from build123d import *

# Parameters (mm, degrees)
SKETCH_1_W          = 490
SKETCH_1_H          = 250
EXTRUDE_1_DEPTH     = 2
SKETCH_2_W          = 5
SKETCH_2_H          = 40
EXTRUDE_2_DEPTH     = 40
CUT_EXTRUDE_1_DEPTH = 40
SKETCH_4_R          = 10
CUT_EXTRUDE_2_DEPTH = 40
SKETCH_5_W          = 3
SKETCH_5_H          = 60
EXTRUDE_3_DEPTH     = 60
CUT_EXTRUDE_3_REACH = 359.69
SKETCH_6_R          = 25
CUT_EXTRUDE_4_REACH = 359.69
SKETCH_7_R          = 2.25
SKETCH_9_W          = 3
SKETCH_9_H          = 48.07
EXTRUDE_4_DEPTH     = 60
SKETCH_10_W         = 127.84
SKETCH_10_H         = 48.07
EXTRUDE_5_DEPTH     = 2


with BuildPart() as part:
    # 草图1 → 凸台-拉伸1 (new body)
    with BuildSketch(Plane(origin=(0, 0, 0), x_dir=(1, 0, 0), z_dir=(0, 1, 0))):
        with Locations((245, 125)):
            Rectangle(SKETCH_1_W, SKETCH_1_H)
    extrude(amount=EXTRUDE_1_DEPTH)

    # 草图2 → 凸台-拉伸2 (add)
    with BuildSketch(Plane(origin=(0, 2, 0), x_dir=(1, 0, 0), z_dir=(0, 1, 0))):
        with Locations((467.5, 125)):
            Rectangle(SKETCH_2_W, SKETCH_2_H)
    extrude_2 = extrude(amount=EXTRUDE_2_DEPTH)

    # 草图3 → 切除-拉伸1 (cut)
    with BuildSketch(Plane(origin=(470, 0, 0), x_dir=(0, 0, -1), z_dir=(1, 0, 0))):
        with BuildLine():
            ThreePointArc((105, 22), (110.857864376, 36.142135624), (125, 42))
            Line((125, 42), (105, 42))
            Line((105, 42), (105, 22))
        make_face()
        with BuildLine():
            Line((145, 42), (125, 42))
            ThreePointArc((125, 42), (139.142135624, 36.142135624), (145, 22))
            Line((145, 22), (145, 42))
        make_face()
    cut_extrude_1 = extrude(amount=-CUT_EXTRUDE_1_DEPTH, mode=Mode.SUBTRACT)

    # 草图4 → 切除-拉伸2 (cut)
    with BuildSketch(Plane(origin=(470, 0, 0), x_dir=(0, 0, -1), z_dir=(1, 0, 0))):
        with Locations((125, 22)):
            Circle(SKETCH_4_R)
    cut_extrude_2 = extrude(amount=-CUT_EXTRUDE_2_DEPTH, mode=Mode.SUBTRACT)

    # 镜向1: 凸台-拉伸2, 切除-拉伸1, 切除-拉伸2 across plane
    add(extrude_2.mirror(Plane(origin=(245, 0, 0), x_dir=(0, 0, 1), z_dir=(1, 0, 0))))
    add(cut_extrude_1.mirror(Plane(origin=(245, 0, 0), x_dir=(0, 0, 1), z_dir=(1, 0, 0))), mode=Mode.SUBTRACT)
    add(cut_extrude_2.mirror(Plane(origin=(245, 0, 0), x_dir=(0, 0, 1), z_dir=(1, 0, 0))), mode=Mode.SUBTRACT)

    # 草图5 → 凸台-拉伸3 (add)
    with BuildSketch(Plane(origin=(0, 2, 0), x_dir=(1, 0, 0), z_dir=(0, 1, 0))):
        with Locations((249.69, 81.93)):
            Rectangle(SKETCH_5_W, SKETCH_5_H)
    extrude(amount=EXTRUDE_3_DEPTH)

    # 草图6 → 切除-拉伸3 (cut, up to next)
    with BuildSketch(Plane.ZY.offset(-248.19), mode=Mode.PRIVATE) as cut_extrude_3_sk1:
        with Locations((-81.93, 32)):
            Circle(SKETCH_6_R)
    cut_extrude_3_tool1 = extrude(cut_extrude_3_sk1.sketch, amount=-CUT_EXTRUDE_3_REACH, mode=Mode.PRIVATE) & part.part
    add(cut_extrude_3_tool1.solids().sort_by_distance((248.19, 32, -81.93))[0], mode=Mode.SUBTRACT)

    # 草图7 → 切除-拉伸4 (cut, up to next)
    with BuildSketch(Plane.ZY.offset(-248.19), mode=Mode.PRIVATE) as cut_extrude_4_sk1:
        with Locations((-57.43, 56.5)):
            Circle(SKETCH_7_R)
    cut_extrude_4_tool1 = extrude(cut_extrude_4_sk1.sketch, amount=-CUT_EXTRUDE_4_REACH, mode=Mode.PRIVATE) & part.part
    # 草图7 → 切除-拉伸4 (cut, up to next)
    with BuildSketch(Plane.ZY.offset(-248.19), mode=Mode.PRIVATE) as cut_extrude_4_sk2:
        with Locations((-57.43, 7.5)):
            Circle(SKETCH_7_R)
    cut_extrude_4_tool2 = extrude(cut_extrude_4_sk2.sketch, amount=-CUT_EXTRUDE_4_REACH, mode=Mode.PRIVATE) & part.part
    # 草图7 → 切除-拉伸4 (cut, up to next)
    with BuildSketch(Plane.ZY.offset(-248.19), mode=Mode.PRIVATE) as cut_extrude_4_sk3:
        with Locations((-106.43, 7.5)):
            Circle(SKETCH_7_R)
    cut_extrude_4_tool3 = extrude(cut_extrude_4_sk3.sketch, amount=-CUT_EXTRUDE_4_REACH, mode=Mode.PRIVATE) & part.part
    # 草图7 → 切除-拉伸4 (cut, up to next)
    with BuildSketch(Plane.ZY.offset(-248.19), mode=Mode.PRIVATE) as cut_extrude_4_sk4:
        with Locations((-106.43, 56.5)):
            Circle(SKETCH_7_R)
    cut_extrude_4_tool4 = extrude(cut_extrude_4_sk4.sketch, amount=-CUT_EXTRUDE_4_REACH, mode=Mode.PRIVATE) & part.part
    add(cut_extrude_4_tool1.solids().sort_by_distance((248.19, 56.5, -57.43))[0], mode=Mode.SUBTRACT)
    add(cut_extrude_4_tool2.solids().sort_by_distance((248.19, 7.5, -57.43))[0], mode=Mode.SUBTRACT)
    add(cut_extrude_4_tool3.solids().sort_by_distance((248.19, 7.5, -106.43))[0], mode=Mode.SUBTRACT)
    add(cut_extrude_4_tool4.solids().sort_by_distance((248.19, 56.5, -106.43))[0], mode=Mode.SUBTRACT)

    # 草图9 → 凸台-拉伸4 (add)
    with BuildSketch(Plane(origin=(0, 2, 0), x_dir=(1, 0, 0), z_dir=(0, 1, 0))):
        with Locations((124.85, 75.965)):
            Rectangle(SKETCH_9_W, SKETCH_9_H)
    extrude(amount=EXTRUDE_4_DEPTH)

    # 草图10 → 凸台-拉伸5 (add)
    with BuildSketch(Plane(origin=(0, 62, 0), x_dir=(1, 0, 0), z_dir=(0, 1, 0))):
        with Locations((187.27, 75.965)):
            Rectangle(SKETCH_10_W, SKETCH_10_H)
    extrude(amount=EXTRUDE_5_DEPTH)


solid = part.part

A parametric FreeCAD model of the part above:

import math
import FreeCAD as App
import Part
import Sketcher
from FreeCAD import Vector
Q = App.Units.Quantity


def add_polygon(sketch, points):
    """Adds a closed chain of lines whose ends are joined by coincident constraints."""
    first, n = sketch.GeometryCount, len(points)
    for a, b in zip(points, points[1:] + points[:1]):
        sketch.addGeometry(Part.LineSegment(App.Vector(*a, 0), App.Vector(*b, 0)), False)
    for i in range(n):
        sketch.addConstraint(Sketcher.Constraint("Coincident", first + i, 2, first + (i + 1) % n, 1))

doc = App.newDocument("Part")
body = doc.addObject("PartDesign::Body", "Body")

# Sketch on XZ plane
sketch1 = body.newObject("Sketcher::SketchObject", "Sketch")
sketch1.AttachmentSupport = (doc.getObject("XZ_Plane"), [""])
sketch1.MapMode = "FlatFace"
add_polygon(sketch1, [(0, -250), (0, 0), (490, 0), (490, -250)])  # lines 0-3
sketch1.addConstraint(Sketcher.Constraint("Vertical", 0))
sketch1.addConstraint(Sketcher.Constraint("Horizontal", 1))
sketch1.addConstraint(Sketcher.Constraint("Vertical", 2))
sketch1.addConstraint(Sketcher.Constraint("Horizontal", 3))
sketch1.addConstraint(Sketcher.Constraint("Coincident", 0, 2, -1, 1))
sketch1.addConstraint(Sketcher.Constraint("DistanceX", 1, 1, 1, 2, Q("490 mm")))
sketch1.addConstraint(Sketcher.Constraint("DistanceY", 0, 1, 0, 2, Q("250 mm")))
pad1 = body.newObject("PartDesign::Pad", "Pad")
pad1.Profile = sketch1
pad1.Length = 2
pad1.Reversed = True

# Sketch on XZ plane
sketch2 = body.newObject("Sketcher::SketchObject", "Sketch001")
sketch2.AttachmentSupport = (doc.getObject("XZ_Plane"), [""])
sketch2.MapMode = "FlatFace"
sketch2.AttachmentOffset = App.Placement(Vector(0, 0, -2), App.Rotation())
add_polygon(sketch2, [(465, -145), (465, -105), (470, -105), (470, -145)])  # lines 0-3
sketch2.addConstraint(Sketcher.Constraint("Vertical", 0))
sketch2.addConstraint(Sketcher.Constraint("Horizontal", 1))
sketch2.addConstraint(Sketcher.Constraint("Vertical", 2))
sketch2.addConstraint(Sketcher.Constraint("Horizontal", 3))
sketch2.addConstraint(Sketcher.Constraint("DistanceX", 1, 1, 1, 2, Q("5 mm")))
sketch2.addConstraint(Sketcher.Constraint("DistanceY", 0, 1, 0, 2, Q("40 mm")))
sketch2.addConstraint(Sketcher.Constraint("DistanceX", -1, 1, 0, 2, Q("465 mm")))
sketch2.addConstraint(Sketcher.Constraint("DistanceY", 0, 2, -1, 1, Q("105 mm")))
pad2 = body.newObject("PartDesign::Pad", "Pad001")
pad2.Profile = sketch2
pad2.Length = 40
pad2.Reversed = True

# Sketch on YZ plane
sketch3 = body.newObject("Sketcher::SketchObject", "Sketch002")
sketch3.AttachmentSupport = (doc.getObject("YZ_Plane"), [""])
sketch3.MapMode = "FlatFace"
sketch3.AttachmentOffset = App.Placement(Vector(0, 0, 470), App.Rotation())
sketch3.addGeometry(Part.ArcOfCircle(Part.Circle(Vector(22, -125, 0), Vector(0, 0, 1), 20), math.radians(0), math.radians(90)), False)
sketch3.addGeometry(Part.LineSegment(Vector(42, -125, 0), Vector(42, -105, 0)), False)
sketch3.addGeometry(Part.LineSegment(Vector(42, -105, 0), Vector(22, -105, 0)), False)
sketch3.addGeometry(Part.LineSegment(Vector(42, -145, 0), Vector(42, -125, 0)), False)
sketch3.addGeometry(Part.ArcOfCircle(Part.Circle(Vector(22, -125, 0), Vector(0, 0, 1), 20), math.radians(-90), math.radians(0)), False)
sketch3.addGeometry(Part.LineSegment(Vector(22, -145, 0), Vector(42, -145, 0)), False)
sketch3.addConstraint(Sketcher.Constraint("Tangent", 0, 1, 1, 1))
sketch3.addConstraint(Sketcher.Constraint("Coincident", 1, 2, 2, 1))
sketch3.addConstraint(Sketcher.Constraint("Tangent", 2, 2, 0, 2))
sketch3.addConstraint(Sketcher.Constraint("Tangent", 3, 2, 4, 2))
sketch3.addConstraint(Sketcher.Constraint("Tangent", 4, 1, 5, 1))
sketch3.addConstraint(Sketcher.Constraint("Coincident", 5, 2, 3, 1))
sketch3.addConstraint(Sketcher.Constraint("Vertical", 1))
sketch3.addConstraint(Sketcher.Constraint("Horizontal", 2))
sketch3.addConstraint(Sketcher.Constraint("Vertical", 3))
sketch3.addConstraint(Sketcher.Constraint("Horizontal", 5))
sketch3.addConstraint(Sketcher.Constraint("Coincident", 4, 3, 0, 3))
sketch3.addConstraint(Sketcher.Constraint("Equal", 0, 4))
sketch3.addConstraint(Sketcher.Constraint("Radius", 0, Q("20 mm")))
sketch3.addConstraint(Sketcher.Constraint("DistanceX", -1, 1, 0, 3, Q("22 mm")))
sketch3.addConstraint(Sketcher.Constraint("DistanceY", 0, 3, -1, 1, Q("125 mm")))
pocket1 = body.newObject("PartDesign::Pocket", "Pocket")
pocket1.Profile = sketch3
pocket1.Length = 40

# Sketch on YZ plane
sketch4 = body.newObject("Sketcher::SketchObject", "Sketch003")
sketch4.AttachmentSupport = (doc.getObject("YZ_Plane"), [""])
sketch4.MapMode = "FlatFace"
sketch4.AttachmentOffset = App.Placement(Vector(0, 0, 470), App.Rotation())
sketch4.addGeometry(Part.Circle(Vector(22, -125, 0), Vector(0, 0, 1), 10), False)
sketch4.addConstraint(Sketcher.Constraint("Diameter", 0, Q("20 mm")))
sketch4.addConstraint(Sketcher.Constraint("DistanceX", -1, 1, 0, 3, Q("22 mm")))
sketch4.addConstraint(Sketcher.Constraint("DistanceY", 0, 3, -1, 1, Q("125 mm")))
pocket2 = body.newObject("PartDesign::Pocket", "Pocket001")
pocket2.Profile = sketch4
pocket2.Length = 40
doc.recompute()

datumplane = body.newObject("PartDesign::Plane", "DatumPlane")
datumplane.AttachmentSupport = (doc.getObject("YZ_Plane"), [""])
datumplane.MapMode = "FlatFace"
datumplane.AttachmentOffset = App.Placement(Vector(0, 0, 245), App.Rotation())
mirrored = body.newObject("PartDesign::Mirrored", "Mirrored")
mirrored.Originals = [pad2, pocket1, pocket2]
mirrored.MirrorPlane = (datumplane, [""])
body.Tip = mirrored

# Sketch on XZ plane
sketch5 = body.newObject("Sketcher::SketchObject", "Sketch004")
sketch5.AttachmentSupport = (doc.getObject("XZ_Plane"), [""])
sketch5.MapMode = "FlatFace"
sketch5.AttachmentOffset = App.Placement(Vector(0, 0, -2), App.Rotation())
add_polygon(sketch5, [(248.2, -111.9), (248.2, -51.9), (251.2, -51.9), (251.2, -111.9)])  # lines 0-3
sketch5.addConstraint(Sketcher.Constraint("Vertical", 0))
sketch5.addConstraint(Sketcher.Constraint("Horizontal", 1))
sketch5.addConstraint(Sketcher.Constraint("Vertical", 2))
sketch5.addConstraint(Sketcher.Constraint("Horizontal", 3))
sketch5.addConstraint(Sketcher.Constraint("DistanceX", 1, 1, 1, 2, Q("3 mm")))
sketch5.addConstraint(Sketcher.Constraint("DistanceY", 0, 1, 0, 2, Q("60 mm")))
sketch5.addConstraint(Sketcher.Constraint("DistanceX", -1, 1, 0, 2, Q("248.19 mm")))
sketch5.addConstraint(Sketcher.Constraint("DistanceY", 0, 2, -1, 1, Q("51.93 mm")))
pad3 = body.newObject("PartDesign::Pad", "Pad002")
pad3.Profile = sketch5
pad3.Length = 60
pad3.Reversed = True

# Sketch on YZ plane
sketch6 = body.newObject("Sketcher::SketchObject", "Sketch005")
sketch6.AttachmentSupport = (doc.getObject("YZ_Plane"), [""])
sketch6.MapMode = "FlatFace"
sketch6.AttachmentOffset = App.Placement(Vector(0, 0, 248.19), App.Rotation())
sketch6.addGeometry(Part.Circle(Vector(32, -82, 0), Vector(0, 0, 1), 25), False)
sketch6.addConstraint(Sketcher.Constraint("Diameter", 0, Q("50 mm")))
sketch6.addConstraint(Sketcher.Constraint("DistanceX", -1, 1, 0, 3, Q("32 mm")))
sketch6.addConstraint(Sketcher.Constraint("DistanceY", 0, 3, -1, 1, Q("81.93 mm")))
pocket3 = body.newObject("PartDesign::Pocket", "Pocket002")
pocket3.Profile = sketch6
pocket3.Type = "UpToFirst"
pocket3.Reversed = True

# Sketch on YZ plane
sketch7 = body.newObject("Sketcher::SketchObject", "Sketch006")
sketch7.AttachmentSupport = (doc.getObject("YZ_Plane"), [""])
sketch7.MapMode = "FlatFace"
sketch7.AttachmentOffset = App.Placement(Vector(0, 0, 248.19), App.Rotation())
sketch7.addGeometry(Part.Circle(Vector(56.5, -57.4, 0), Vector(0, 0, 1), 2.2), False)
sketch7.addConstraint(Sketcher.Constraint("Diameter", 0, Q("4.5 mm")))
sketch7.addConstraint(Sketcher.Constraint("DistanceX", -1, 1, 0, 3, Q("56.5 mm")))
sketch7.addConstraint(Sketcher.Constraint("DistanceY", 0, 3, -1, 1, Q("57.43 mm")))
pocket4 = body.newObject("PartDesign::Pocket", "Pocket003")
pocket4.Profile = sketch7
pocket4.Type = "UpToFirst"
pocket4.Reversed = True

# Sketch on YZ plane
sketch8 = body.newObject("Sketcher::SketchObject", "Sketch007")
sketch8.AttachmentSupport = (doc.getObject("YZ_Plane"), [""])
sketch8.MapMode = "FlatFace"
sketch8.AttachmentOffset = App.Placement(Vector(0, 0, 248.19), App.Rotation())
sketch8.addGeometry(Part.Circle(Vector(7.5, -57.4, 0), Vector(0, 0, 1), 2.2), False)
sketch8.addConstraint(Sketcher.Constraint("Diameter", 0, Q("4.5 mm")))
sketch8.addConstraint(Sketcher.Constraint("DistanceX", -1, 1, 0, 3, Q("7.5 mm")))
sketch8.addConstraint(Sketcher.Constraint("DistanceY", 0, 3, -1, 1, Q("57.43 mm")))
pocket5 = body.newObject("PartDesign::Pocket", "Pocket004")
pocket5.Profile = sketch8
pocket5.Type = "UpToFirst"
pocket5.Reversed = True

# Sketch on YZ plane
sketch9 = body.newObject("Sketcher::SketchObject", "Sketch008")
sketch9.AttachmentSupport = (doc.getObject("YZ_Plane"), [""])
sketch9.MapMode = "FlatFace"
sketch9.AttachmentOffset = App.Placement(Vector(0, 0, 248.19), App.Rotation())
sketch9.addGeometry(Part.Circle(Vector(7.5, -106.4, 0), Vector(0, 0, 1), 2.2), False)
sketch9.addConstraint(Sketcher.Constraint("Diameter", 0, Q("4.5 mm")))
sketch9.addConstraint(Sketcher.Constraint("DistanceX", -1, 1, 0, 3, Q("7.5 mm")))
sketch9.addConstraint(Sketcher.Constraint("DistanceY", 0, 3, -1, 1, Q("106.43 mm")))
pocket6 = body.newObject("PartDesign::Pocket", "Pocket005")
pocket6.Profile = sketch9
pocket6.Type = "UpToFirst"
pocket6.Reversed = True

# Sketch on YZ plane
sketch10 = body.newObject("Sketcher::SketchObject", "Sketch009")
sketch10.AttachmentSupport = (doc.getObject("YZ_Plane"), [""])
sketch10.MapMode = "FlatFace"
sketch10.AttachmentOffset = App.Placement(Vector(0, 0, 248.19), App.Rotation())
sketch10.addGeometry(Part.Circle(Vector(56.5, -106.4, 0), Vector(0, 0, 1), 2.2), False)
sketch10.addConstraint(Sketcher.Constraint("Diameter", 0, Q("4.5 mm")))
sketch10.addConstraint(Sketcher.Constraint("DistanceX", -1, 1, 0, 3, Q("56.5 mm")))
sketch10.addConstraint(Sketcher.Constraint("DistanceY", 0, 3, -1, 1, Q("106.43 mm")))
pocket7 = body.newObject("PartDesign::Pocket", "Pocket006")
pocket7.Profile = sketch10
pocket7.Type = "UpToFirst"
pocket7.Reversed = True

# Sketch on XZ plane
sketch11 = body.newObject("Sketcher::SketchObject", "Sketch010")
sketch11.AttachmentSupport = (doc.getObject("XZ_Plane"), [""])
sketch11.MapMode = "FlatFace"
sketch11.AttachmentOffset = App.Placement(Vector(0, 0, -2), App.Rotation())
add_polygon(sketch11, [(123.3, -100), (123.3, -51.9), (126.3, -51.9), (126.3, -100)])  # lines 0-3
sketch11.addConstraint(Sketcher.Constraint("Vertical", 0))
sketch11.addConstraint(Sketcher.Constraint("Horizontal", 1))
sketch11.addConstraint(Sketcher.Constraint("Vertical", 2))
sketch11.addConstraint(Sketcher.Constraint("Horizontal", 3))
sketch11.addConstraint(Sketcher.Constraint("DistanceX", 1, 1, 1, 2, Q("3 mm")))
sketch11.addConstraint(Sketcher.Constraint("DistanceY", 2, 2, -1, 1, Q("100 mm")))
sketch11.addConstraint(Sketcher.Constraint("DistanceY", 0, 1, 0, 2, Q("48.07 mm")))
sketch11.addConstraint(Sketcher.Constraint("DistanceX", -1, 1, 0, 2, Q("123.35 mm")))
pad4 = body.newObject("PartDesign::Pad", "Pad003")
pad4.Profile = sketch11
pad4.Length = 60
pad4.Reversed = True

# Sketch on XZ plane
sketch12 = body.newObject("Sketcher::SketchObject", "Sketch011")
sketch12.AttachmentSupport = (doc.getObject("XZ_Plane"), [""])
sketch12.MapMode = "FlatFace"
sketch12.AttachmentOffset = App.Placement(Vector(0, 0, -62), App.Rotation())
add_polygon(sketch12, [(123, -100), (123, -52), (251, -52), (251, -100)])  # lines 0-3
sketch12.addConstraint(Sketcher.Constraint("Vertical", 0))
sketch12.addConstraint(Sketcher.Constraint("Horizontal", 1))
sketch12.addConstraint(Sketcher.Constraint("Vertical", 2))
sketch12.addConstraint(Sketcher.Constraint("Horizontal", 3))
sketch12.addConstraint(Sketcher.Constraint("DistanceY", 2, 2, -1, 1, Q("100 mm")))
sketch12.addConstraint(Sketcher.Constraint("DistanceX", 1, 1, 1, 2, Q("127.84 mm")))
sketch12.addConstraint(Sketcher.Constraint("DistanceY", 0, 1, 0, 2, Q("48.07 mm")))
sketch12.addConstraint(Sketcher.Constraint("DistanceX", -1, 1, 0, 2, Q("123.35 mm")))
pad5 = body.newObject("PartDesign::Pad", "Pad004")
pad5.Profile = sketch12
pad5.Length = 2
pad5.Reversed = True

doc.recompute()
